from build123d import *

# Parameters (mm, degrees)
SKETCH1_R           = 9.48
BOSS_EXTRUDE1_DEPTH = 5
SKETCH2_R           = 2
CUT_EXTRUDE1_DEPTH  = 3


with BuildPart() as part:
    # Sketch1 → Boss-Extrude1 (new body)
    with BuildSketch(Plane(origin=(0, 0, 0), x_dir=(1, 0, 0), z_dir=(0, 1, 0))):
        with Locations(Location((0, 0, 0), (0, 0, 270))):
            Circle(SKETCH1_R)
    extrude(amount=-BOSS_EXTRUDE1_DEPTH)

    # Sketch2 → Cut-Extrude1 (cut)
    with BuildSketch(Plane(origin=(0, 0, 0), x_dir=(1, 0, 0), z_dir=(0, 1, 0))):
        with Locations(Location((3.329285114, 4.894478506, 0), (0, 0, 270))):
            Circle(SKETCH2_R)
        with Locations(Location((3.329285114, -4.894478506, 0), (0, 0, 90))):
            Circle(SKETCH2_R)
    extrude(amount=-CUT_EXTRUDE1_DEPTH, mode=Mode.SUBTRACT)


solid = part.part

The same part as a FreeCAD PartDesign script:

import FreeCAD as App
import Part
import Sketcher
Q = App.Units.Quantity

doc = App.newDocument("Part")
body = doc.addObject("PartDesign::Body", "Body")

sketch1 = body.newObject("Sketcher::SketchObject", "Sketch")
sketch1.AttachmentSupport = (doc.getObject("XZ_Plane"), [""])
sketch1.MapMode = "FlatFace"
sketch1.addGeometry(Part.Circle(App.Vector(0, 0, 0), App.Vector(0, 0, 1), 9), False)
sketch1.addConstraint(Sketcher.Constraint("Coincident", 0, 3, -1, 1))
sketch1.addConstraint(Sketcher.Constraint("Diameter", 0, Q("18.96 mm")))
pad1 = body.newObject("PartDesign::Pad", "Pad")
pad1.Profile = sketch1
pad1.Length = 5

sketch2 = body.newObject("Sketcher::SketchObject", "Sketch001")
sketch2.AttachmentSupport = (doc.getObject("XZ_Plane"), [""])
sketch2.MapMode = "FlatFace"
sketch2.addGeometry(Part.Circle(App.Vector(3.3, -4.9, 0), App.Vector(0, 0, 1), 2), False)
sketch2.addGeometry(Part.Circle(App.Vector(3.3, 4.9, 0), App.Vector(0, 0, 1), 2), False)
sketch2.addConstraint(Sketcher.Constraint("Equal", 0, 1))
sketch2.addConstraint(Sketcher.Constraint("Symmetric", 0, 3, 1, 3, -1))
sketch2.addConstraint(Sketcher.Constraint("Diameter", 0, Q("4 mm")))
sketch2.addConstraint(Sketcher.Constraint("DistanceY", 0, 3, -1, 1, Q("4.894479 mm")))
sketch2.addConstraint(Sketcher.Constraint("DistanceX", -1, 1, 0, 3, Q("3.329285 mm")))
pocket1 = body.newObject("PartDesign::Pocket", "Pocket")
pocket1.Profile = sketch2
pocket1.Length = 3
pocket1.Reversed = True

doc.recompute()
